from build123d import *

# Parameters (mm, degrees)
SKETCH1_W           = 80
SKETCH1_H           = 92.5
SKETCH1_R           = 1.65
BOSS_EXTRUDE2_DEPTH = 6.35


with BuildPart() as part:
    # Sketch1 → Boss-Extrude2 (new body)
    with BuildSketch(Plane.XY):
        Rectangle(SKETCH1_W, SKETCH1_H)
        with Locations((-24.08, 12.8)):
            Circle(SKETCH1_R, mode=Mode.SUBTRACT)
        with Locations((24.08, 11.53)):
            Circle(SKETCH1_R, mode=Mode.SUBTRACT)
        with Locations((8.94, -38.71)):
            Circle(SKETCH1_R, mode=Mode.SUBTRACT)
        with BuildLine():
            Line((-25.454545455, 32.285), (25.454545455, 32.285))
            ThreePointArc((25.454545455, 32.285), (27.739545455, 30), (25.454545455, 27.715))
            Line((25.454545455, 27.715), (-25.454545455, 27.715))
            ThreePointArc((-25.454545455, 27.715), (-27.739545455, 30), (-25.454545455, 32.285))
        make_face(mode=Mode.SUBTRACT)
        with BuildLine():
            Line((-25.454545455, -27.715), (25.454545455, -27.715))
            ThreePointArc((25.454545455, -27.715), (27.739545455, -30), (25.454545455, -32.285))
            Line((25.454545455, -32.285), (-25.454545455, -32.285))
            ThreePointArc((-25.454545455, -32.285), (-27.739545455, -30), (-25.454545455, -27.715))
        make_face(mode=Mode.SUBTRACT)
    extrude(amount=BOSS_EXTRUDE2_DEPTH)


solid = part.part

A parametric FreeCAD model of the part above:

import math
import FreeCAD as App
import Part
import Sketcher

doc = App.newDocument("Part")
body = doc.addObject("PartDesign::Body", "Body")

sketch1 = body.newObject("Sketcher::SketchObject", "Sketch")
sketch1.AttachmentSupport = (doc.getObject("XY_Plane"), [""])
sketch1.MapMode = "FlatFace"
sketch1.addGeometry([
    Part.LineSegment(App.Vector(-40, 46.2, 0), App.Vector(-40, -46.2, 0)),
    Part.LineSegment(App.Vector(-40, -46.2, 0), App.Vector(40, -46.2, 0)),
    Part.LineSegment(App.Vector(40, -46.2, 0), App.Vector(40, 46.2, 0)),
    Part.LineSegment(App.Vector(40, 46.2, 0), App.Vector(-40, 46.2, 0)),
    Part.Circle(App.Vector(8.9, -38.7, 0), App.Vector(0, 0, 1), 1.6),
    Part.ArcOfCircle(Part.Circle(App.Vector(-25.5, -30, 0), App.Vector(0, 0, 1), 2.3), math.radians(90), math.radians(270)),
    Part.LineSegment(App.Vector(-25.5, -27.7, 0), App.Vector(25.5, -27.7, 0)),
    Part.ArcOfCircle(Part.Circle(App.Vector(25.5, -30, 0), App.Vector(0, 0, 1), 2.3), math.radians(-90), math.radians(90)),
    Part.LineSegment(App.Vector(25.5, -32.3, 0), App.Vector(-25.5, -32.3, 0)),
    Part.Circle(App.Vector(-24.1, 12.8, 0), App.Vector(0, 0, 1), 1.6),
    Part.Circle(App.Vector(24.1, 11.5, 0), App.Vector(0, 0, 1), 1.6),
    Part.ArcOfCircle(Part.Circle(App.Vector(-25.5, 30, 0), App.Vector(0, 0, 1), 2.3), math.radians(90), math.radians(270)),
    Part.LineSegment(App.Vector(-25.5, 32.3, 0), App.Vector(25.5, 32.3, 0)),
    Part.ArcOfCircle(Part.Circle(App.Vector(25.5, 30, 0), App.Vector(0, 0, 1), 2.3), math.radians(-90), math.radians(90)),
    Part.LineSegment(App.Vector(25.5, 27.7, 0), App.Vector(-25.5, 27.7, 0)),
], False)
sketch1.addConstraint([
    Sketcher.Constraint("Coincident", 0, 2, 1, 1),
    Sketcher.Constraint("Coincident", 1, 2, 2, 1),
    Sketcher.Constraint("Coincident", 2, 2, 3, 1),
    Sketcher.Constraint("Coincident", 3, 2, 0, 1),
    Sketcher.Constraint("Tangent", 5, 1, 6, 1),
    Sketcher.Constraint("Tangent", 6, 2, 7, 2),
    Sketcher.Constraint("Tangent", 7, 1, 8, 1),
    Sketcher.Constraint("Tangent", 8, 2, 5, 2),
    Sketcher.Constraint("Tangent", 11, 1, 12, 1),
    Sketcher.Constraint("Tangent", 12, 2, 13, 2),
    Sketcher.Constraint("Tangent", 13, 1, 14, 1),
    Sketcher.Constraint("Tangent", 14, 2, 11, 2),
    Sketcher.Constraint("Vertical", 0),
    Sketcher.Constraint("Horizontal", 1),
    Sketcher.Constraint("Vertical", 2),
    Sketcher.Constraint("Horizontal", 3),
    Sketcher.Constraint("Horizontal", 6),
    Sketcher.Constraint("Horizontal", 8),
    Sketcher.Constraint("Horizontal", 12),
    Sketcher.Constraint("Horizontal", 14),
    Sketcher.Constraint("Equal", 4, 9),
    Sketcher.Constraint("Equal", 9, 10),
    Sketcher.Constraint("Equal", 7, 11),
    Sketcher.Constraint("Symmetric", 7, 3, 11, 3, -1, 1),
    Sketcher.Constraint("Symmetric", 0, 2, 2, 2, -1, 1),
    Sketcher.Constraint("Vertical", 5, 3, 11, 3),
    Sketcher.Constraint("Vertical", 7, 3, 13, 3),
    Sketcher.Constraint("Diameter", 4, 3.3),
    Sketcher.Constraint("DistanceX", 1, 1, 1, 2, 80.0),
    Sketcher.Constraint("DistanceY", 0, 2, 0, 1, 92.5),
    Sketcher.Constraint("DistanceY", 5, 3, -1, 1, 30.0),
    Sketcher.Constraint("Radius", 5, 2.285),
    Sketcher.Constraint("DistanceY", -1, 1, 9, 3, 12.8),
    Sketcher.Constraint("DistanceX", -1, 1, 4, 3, 8.94),
    Sketcher.Constraint("DistanceY", 4, 3, -1, 1, 38.71),
    Sketcher.Constraint("DistanceX", 9, 3, -1, 1, 24.08),
    Sketcher.Constraint("DistanceX", -1, 1, 10, 3, 24.08),
    Sketcher.Constraint("DistanceY", -1, 1, 10, 3, 11.53),
    Sketcher.Constraint("DistanceX", 6, 1, 6, 2, 50.909091),
])
pad1 = body.newObject("PartDesign::Pad", "Pad")
pad1.Profile = sketch1
pad1.Length = 6.35

doc.recompute()
